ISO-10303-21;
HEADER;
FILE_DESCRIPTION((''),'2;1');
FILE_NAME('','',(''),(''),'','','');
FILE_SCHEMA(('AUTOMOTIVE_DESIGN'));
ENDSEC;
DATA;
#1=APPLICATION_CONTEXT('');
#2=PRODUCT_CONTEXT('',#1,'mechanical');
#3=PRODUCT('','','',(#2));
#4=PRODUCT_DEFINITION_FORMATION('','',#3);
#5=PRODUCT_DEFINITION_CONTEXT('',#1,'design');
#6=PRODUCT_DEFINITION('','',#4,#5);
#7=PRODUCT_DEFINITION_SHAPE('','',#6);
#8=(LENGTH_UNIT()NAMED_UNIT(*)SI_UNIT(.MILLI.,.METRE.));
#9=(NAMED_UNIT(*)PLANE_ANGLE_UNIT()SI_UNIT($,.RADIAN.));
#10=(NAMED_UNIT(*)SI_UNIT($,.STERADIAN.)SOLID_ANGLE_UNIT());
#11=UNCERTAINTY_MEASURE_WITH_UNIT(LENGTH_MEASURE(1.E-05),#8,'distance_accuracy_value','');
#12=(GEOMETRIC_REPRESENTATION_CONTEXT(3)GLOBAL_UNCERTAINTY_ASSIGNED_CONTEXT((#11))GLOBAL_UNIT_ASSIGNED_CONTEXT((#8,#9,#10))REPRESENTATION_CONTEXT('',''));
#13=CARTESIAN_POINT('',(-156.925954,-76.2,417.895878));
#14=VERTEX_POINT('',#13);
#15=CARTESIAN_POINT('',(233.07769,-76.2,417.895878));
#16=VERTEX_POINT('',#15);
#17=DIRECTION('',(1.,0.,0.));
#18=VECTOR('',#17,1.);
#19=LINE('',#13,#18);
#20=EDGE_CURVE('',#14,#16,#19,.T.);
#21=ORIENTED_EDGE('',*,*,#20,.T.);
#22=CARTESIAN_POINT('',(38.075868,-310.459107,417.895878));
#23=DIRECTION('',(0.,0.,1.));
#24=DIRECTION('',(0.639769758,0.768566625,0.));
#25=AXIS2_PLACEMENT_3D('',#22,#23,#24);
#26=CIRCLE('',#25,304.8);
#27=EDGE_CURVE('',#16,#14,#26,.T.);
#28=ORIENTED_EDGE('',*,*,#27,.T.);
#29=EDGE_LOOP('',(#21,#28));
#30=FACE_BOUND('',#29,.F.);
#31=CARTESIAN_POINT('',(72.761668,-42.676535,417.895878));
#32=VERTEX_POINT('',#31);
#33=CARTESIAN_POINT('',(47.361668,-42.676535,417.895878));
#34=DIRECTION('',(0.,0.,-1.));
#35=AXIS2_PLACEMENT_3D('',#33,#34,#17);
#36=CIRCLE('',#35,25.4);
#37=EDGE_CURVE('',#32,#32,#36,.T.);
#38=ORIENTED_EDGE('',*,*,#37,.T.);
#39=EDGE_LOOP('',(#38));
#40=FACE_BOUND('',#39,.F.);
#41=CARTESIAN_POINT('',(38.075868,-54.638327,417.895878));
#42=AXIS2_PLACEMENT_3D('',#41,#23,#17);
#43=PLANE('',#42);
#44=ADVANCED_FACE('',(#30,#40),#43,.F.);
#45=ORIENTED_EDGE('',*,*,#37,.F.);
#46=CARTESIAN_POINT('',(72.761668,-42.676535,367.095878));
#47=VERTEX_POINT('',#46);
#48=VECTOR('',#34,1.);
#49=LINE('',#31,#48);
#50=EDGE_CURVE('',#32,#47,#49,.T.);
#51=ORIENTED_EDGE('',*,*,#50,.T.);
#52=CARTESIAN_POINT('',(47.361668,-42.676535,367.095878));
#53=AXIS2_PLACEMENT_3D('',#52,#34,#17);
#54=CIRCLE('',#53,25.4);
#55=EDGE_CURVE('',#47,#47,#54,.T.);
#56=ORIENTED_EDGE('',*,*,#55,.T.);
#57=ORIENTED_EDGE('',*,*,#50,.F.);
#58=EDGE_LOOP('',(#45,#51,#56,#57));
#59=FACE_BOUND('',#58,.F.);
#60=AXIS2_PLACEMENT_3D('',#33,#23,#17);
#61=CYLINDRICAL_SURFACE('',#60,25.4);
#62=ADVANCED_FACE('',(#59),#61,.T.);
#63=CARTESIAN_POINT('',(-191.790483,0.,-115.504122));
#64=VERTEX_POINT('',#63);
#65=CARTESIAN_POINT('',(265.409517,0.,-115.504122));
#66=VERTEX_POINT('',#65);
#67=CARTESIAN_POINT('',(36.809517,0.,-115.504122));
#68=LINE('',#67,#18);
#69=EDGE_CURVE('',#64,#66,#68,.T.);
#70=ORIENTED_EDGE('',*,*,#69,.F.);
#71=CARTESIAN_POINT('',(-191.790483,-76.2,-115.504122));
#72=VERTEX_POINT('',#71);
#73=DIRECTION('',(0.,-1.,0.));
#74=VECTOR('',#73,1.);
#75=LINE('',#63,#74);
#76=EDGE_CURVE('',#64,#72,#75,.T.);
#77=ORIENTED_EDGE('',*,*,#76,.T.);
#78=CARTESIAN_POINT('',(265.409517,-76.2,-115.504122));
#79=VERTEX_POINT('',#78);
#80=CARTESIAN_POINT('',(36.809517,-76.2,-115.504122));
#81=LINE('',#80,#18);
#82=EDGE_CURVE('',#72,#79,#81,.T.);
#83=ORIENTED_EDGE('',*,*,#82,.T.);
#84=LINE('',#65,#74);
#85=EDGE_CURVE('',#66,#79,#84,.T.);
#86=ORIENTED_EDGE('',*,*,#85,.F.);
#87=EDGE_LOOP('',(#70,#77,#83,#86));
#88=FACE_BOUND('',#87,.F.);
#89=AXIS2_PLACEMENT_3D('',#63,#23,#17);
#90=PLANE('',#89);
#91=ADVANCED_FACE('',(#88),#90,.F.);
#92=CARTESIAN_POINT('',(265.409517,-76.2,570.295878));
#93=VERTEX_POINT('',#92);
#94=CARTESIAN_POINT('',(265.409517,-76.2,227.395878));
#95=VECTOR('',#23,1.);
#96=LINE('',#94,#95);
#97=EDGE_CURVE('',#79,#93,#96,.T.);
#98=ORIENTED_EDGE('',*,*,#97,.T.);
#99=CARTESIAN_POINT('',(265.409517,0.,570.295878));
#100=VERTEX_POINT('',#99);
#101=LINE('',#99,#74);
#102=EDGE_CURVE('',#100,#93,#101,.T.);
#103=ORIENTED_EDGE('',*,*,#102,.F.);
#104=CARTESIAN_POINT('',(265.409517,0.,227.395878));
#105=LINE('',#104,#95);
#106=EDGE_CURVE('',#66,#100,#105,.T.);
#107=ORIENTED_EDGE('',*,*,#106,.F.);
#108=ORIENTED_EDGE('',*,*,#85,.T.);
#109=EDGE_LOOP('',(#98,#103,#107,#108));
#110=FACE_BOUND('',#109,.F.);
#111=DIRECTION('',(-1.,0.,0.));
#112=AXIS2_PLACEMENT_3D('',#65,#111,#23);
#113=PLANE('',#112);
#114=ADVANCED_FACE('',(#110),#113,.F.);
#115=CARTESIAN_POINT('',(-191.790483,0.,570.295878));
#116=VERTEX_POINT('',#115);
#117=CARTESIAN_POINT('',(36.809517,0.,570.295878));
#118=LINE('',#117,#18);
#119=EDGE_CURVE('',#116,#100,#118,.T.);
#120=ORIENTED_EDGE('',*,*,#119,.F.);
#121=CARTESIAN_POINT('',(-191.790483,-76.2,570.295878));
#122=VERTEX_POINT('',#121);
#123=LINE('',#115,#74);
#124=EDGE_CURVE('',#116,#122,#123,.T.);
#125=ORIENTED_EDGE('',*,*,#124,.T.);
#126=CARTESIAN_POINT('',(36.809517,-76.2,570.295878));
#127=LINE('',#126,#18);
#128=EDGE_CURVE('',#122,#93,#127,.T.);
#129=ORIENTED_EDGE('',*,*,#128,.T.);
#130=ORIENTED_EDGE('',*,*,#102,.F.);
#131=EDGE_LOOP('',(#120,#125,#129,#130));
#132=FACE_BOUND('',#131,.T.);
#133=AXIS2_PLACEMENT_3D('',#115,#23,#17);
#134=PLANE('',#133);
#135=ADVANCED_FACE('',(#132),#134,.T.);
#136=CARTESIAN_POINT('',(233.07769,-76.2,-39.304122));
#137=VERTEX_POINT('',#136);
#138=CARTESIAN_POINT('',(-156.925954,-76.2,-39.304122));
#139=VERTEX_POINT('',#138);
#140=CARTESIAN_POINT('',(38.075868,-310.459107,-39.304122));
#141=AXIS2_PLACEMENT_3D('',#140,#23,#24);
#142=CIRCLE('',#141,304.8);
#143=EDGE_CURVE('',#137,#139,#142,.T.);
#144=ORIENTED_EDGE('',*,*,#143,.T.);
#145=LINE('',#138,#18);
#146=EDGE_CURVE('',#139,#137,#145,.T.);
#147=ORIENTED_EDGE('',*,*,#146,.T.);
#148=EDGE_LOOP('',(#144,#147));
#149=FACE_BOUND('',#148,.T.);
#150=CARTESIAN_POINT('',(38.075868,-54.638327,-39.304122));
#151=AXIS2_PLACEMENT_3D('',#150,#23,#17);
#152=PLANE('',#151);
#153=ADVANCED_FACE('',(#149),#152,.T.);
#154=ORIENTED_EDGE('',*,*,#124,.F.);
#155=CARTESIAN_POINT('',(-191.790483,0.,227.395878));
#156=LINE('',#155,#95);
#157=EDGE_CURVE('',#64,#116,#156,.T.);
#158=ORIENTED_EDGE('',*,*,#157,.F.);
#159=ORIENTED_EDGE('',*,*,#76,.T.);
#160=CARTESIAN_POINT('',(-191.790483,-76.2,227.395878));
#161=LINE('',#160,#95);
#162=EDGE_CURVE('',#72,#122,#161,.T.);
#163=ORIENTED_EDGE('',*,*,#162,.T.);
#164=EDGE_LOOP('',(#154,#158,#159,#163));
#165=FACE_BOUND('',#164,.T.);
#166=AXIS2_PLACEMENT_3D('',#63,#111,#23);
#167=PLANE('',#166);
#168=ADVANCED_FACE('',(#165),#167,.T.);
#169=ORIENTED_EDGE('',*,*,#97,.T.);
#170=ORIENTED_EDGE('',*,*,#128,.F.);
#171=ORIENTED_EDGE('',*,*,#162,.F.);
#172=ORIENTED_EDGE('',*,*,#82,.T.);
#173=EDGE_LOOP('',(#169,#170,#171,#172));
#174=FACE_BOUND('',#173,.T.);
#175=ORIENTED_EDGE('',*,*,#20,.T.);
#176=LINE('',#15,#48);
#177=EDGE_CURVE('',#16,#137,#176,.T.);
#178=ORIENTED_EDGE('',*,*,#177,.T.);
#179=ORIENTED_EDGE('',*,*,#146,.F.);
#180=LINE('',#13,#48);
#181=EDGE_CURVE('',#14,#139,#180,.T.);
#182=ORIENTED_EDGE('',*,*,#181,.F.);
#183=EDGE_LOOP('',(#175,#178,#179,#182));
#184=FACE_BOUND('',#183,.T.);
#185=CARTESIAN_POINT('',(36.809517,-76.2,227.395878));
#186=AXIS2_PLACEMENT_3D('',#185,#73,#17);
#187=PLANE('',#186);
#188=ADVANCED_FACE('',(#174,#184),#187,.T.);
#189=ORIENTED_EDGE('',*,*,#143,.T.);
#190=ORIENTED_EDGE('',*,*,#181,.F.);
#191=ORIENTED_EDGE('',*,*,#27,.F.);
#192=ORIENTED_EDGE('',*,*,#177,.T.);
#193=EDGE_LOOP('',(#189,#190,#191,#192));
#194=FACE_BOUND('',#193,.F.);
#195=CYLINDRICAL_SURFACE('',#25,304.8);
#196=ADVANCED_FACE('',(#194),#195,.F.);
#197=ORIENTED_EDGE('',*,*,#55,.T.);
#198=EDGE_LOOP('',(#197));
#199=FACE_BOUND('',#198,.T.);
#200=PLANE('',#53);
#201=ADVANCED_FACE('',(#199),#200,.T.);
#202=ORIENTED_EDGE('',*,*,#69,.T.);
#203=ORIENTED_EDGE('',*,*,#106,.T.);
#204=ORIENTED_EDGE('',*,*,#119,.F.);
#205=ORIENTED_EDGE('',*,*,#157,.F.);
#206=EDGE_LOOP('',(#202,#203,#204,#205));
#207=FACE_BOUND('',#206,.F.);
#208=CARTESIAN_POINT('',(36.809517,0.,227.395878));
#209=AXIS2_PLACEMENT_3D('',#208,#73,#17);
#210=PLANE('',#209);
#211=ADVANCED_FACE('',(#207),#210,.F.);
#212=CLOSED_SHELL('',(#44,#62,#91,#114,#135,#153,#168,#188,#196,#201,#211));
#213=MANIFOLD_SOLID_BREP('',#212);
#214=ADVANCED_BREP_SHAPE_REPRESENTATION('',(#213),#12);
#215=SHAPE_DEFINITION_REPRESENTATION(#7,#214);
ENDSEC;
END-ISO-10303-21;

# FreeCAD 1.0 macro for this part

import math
import FreeCAD as App
import Part
import Sketcher
from FreeCAD import Vector
Q = App.Units.Quantity

doc = App.newDocument("Part")
body = doc.addObject("PartDesign::Body", "Body")

sketch1 = doc.addObject("Sketcher::SketchObject", "Sketch")
body.addObject(sketch1)
sketch1.AttachmentSupport = (doc.XZ_Plane, [""])
sketch1.MapMode = "FlatFace"
sketch1.addGeometry([
    Part.LineSegment(Vector(-192, 570, 0), Vector(-192, -116, 0)),
    Part.LineSegment(Vector(-192, -116, 0), Vector(265, -116, 0)),
    Part.LineSegment(Vector(265, -116, 0), Vector(265, 570, 0)),
    Part.LineSegment(Vector(265, 570, 0), Vector(-192, 570, 0)),
], False)
sketch1.addConstraint([
    Sketcher.Constraint("Coincident", 0, 2, 1, 1),
    Sketcher.Constraint("Coincident", 1, 2, 2, 1),
    Sketcher.Constraint("Coincident", 2, 2, 3, 1),
    Sketcher.Constraint("Coincident", 3, 2, 0, 1),
    Sketcher.Constraint("Vertical", 0),
    Sketcher.Constraint("Horizontal", 1),
    Sketcher.Constraint("Vertical", 2),
    Sketcher.Constraint("Horizontal", 3),
    Sketcher.Constraint("DistanceX", 1, 1, 1, 2, Q("18 in")),
    Sketcher.Constraint("DistanceY", 0, 2, 0, 1, Q("27 in")),
    Sketcher.Constraint("DistanceX", 0, 2, -1, 1, Q("191.790483 mm")),
    Sketcher.Constraint("DistanceY", 0, 2, -1, 1, Q("115.504122 mm")),
])
pad1 = doc.addObject("PartDesign::Pad", "Pad")
body.addObject(pad1)
pad1.Profile = sketch1
pad1.Length = Q("3 in")

sketch2 = doc.addObject("Sketcher::SketchObject", "Sketch001")
body.addObject(sketch2)
sketch2.AttachmentSupport = (doc.XY_Plane, [""])
sketch2.MapMode = "FlatFace"
sketch2.AttachmentOffset = App.Placement(Vector(0, 0, 417.895878), App.Rotation())
sketch2.addGeometry([
    Part.LineSegment(Vector(-157, -76, 0), Vector(233, -76, 0)),
    Part.ArcOfCircle(Part.Circle(Vector(38, -310, 0), Vector(0, 0, 1), 305), math.radians(50), math.radians(130)),
], False)
sketch2.addConstraint([
    Sketcher.Constraint("Coincident", 0, 1, 1, 2),
    Sketcher.Constraint("Coincident", 1, 1, 0, 2),
    Sketcher.Constraint("Horizontal", 0),
    Sketcher.Constraint("Radius", 1, Q("12 in")),
    Sketcher.Constraint("DistanceY", 0, 1, -1, 1, Q("3 in")),
    Sketcher.Constraint("DistanceX", 0, 1, 0, 2, Q("390.003645 mm")),
    Sketcher.Constraint("DistanceX", -1, 1, 1, 3, Q("38.075868 mm")),
])
pocket1 = doc.addObject("PartDesign::Pocket", "Pocket")
body.addObject(pocket1)
pocket1.Profile = sketch2
pocket1.Length = Q("18 in")

sketch3 = doc.addObject("Sketcher::SketchObject", "Sketch002")
body.addObject(sketch3)
sketch3.AttachmentSupport = (doc.XY_Plane, [""])
sketch3.MapMode = "FlatFace"
sketch3.AttachmentOffset = App.Placement(Vector(0, 0, 417.895878), App.Rotation())
sketch3.addGeometry(Part.Circle(Vector(47, -43, 0), Vector(0, 0, 1), 25), False)
sketch3.addConstraint([
    Sketcher.Constraint("Diameter", 0, Q("2 in")),
    Sketcher.Constraint("DistanceX", -1, 1, 0, 3, Q("47.361668 mm")),
    Sketcher.Constraint("DistanceY", 0, 3, -1, 1, Q("42.676535 mm")),
])
pad2 = doc.addObject("PartDesign::Pad", "Pad001")
body.addObject(pad2)
pad2.Profile = sketch3
pad2.Length = Q("2 in")
pad2.Reversed = True

doc.recompute()
